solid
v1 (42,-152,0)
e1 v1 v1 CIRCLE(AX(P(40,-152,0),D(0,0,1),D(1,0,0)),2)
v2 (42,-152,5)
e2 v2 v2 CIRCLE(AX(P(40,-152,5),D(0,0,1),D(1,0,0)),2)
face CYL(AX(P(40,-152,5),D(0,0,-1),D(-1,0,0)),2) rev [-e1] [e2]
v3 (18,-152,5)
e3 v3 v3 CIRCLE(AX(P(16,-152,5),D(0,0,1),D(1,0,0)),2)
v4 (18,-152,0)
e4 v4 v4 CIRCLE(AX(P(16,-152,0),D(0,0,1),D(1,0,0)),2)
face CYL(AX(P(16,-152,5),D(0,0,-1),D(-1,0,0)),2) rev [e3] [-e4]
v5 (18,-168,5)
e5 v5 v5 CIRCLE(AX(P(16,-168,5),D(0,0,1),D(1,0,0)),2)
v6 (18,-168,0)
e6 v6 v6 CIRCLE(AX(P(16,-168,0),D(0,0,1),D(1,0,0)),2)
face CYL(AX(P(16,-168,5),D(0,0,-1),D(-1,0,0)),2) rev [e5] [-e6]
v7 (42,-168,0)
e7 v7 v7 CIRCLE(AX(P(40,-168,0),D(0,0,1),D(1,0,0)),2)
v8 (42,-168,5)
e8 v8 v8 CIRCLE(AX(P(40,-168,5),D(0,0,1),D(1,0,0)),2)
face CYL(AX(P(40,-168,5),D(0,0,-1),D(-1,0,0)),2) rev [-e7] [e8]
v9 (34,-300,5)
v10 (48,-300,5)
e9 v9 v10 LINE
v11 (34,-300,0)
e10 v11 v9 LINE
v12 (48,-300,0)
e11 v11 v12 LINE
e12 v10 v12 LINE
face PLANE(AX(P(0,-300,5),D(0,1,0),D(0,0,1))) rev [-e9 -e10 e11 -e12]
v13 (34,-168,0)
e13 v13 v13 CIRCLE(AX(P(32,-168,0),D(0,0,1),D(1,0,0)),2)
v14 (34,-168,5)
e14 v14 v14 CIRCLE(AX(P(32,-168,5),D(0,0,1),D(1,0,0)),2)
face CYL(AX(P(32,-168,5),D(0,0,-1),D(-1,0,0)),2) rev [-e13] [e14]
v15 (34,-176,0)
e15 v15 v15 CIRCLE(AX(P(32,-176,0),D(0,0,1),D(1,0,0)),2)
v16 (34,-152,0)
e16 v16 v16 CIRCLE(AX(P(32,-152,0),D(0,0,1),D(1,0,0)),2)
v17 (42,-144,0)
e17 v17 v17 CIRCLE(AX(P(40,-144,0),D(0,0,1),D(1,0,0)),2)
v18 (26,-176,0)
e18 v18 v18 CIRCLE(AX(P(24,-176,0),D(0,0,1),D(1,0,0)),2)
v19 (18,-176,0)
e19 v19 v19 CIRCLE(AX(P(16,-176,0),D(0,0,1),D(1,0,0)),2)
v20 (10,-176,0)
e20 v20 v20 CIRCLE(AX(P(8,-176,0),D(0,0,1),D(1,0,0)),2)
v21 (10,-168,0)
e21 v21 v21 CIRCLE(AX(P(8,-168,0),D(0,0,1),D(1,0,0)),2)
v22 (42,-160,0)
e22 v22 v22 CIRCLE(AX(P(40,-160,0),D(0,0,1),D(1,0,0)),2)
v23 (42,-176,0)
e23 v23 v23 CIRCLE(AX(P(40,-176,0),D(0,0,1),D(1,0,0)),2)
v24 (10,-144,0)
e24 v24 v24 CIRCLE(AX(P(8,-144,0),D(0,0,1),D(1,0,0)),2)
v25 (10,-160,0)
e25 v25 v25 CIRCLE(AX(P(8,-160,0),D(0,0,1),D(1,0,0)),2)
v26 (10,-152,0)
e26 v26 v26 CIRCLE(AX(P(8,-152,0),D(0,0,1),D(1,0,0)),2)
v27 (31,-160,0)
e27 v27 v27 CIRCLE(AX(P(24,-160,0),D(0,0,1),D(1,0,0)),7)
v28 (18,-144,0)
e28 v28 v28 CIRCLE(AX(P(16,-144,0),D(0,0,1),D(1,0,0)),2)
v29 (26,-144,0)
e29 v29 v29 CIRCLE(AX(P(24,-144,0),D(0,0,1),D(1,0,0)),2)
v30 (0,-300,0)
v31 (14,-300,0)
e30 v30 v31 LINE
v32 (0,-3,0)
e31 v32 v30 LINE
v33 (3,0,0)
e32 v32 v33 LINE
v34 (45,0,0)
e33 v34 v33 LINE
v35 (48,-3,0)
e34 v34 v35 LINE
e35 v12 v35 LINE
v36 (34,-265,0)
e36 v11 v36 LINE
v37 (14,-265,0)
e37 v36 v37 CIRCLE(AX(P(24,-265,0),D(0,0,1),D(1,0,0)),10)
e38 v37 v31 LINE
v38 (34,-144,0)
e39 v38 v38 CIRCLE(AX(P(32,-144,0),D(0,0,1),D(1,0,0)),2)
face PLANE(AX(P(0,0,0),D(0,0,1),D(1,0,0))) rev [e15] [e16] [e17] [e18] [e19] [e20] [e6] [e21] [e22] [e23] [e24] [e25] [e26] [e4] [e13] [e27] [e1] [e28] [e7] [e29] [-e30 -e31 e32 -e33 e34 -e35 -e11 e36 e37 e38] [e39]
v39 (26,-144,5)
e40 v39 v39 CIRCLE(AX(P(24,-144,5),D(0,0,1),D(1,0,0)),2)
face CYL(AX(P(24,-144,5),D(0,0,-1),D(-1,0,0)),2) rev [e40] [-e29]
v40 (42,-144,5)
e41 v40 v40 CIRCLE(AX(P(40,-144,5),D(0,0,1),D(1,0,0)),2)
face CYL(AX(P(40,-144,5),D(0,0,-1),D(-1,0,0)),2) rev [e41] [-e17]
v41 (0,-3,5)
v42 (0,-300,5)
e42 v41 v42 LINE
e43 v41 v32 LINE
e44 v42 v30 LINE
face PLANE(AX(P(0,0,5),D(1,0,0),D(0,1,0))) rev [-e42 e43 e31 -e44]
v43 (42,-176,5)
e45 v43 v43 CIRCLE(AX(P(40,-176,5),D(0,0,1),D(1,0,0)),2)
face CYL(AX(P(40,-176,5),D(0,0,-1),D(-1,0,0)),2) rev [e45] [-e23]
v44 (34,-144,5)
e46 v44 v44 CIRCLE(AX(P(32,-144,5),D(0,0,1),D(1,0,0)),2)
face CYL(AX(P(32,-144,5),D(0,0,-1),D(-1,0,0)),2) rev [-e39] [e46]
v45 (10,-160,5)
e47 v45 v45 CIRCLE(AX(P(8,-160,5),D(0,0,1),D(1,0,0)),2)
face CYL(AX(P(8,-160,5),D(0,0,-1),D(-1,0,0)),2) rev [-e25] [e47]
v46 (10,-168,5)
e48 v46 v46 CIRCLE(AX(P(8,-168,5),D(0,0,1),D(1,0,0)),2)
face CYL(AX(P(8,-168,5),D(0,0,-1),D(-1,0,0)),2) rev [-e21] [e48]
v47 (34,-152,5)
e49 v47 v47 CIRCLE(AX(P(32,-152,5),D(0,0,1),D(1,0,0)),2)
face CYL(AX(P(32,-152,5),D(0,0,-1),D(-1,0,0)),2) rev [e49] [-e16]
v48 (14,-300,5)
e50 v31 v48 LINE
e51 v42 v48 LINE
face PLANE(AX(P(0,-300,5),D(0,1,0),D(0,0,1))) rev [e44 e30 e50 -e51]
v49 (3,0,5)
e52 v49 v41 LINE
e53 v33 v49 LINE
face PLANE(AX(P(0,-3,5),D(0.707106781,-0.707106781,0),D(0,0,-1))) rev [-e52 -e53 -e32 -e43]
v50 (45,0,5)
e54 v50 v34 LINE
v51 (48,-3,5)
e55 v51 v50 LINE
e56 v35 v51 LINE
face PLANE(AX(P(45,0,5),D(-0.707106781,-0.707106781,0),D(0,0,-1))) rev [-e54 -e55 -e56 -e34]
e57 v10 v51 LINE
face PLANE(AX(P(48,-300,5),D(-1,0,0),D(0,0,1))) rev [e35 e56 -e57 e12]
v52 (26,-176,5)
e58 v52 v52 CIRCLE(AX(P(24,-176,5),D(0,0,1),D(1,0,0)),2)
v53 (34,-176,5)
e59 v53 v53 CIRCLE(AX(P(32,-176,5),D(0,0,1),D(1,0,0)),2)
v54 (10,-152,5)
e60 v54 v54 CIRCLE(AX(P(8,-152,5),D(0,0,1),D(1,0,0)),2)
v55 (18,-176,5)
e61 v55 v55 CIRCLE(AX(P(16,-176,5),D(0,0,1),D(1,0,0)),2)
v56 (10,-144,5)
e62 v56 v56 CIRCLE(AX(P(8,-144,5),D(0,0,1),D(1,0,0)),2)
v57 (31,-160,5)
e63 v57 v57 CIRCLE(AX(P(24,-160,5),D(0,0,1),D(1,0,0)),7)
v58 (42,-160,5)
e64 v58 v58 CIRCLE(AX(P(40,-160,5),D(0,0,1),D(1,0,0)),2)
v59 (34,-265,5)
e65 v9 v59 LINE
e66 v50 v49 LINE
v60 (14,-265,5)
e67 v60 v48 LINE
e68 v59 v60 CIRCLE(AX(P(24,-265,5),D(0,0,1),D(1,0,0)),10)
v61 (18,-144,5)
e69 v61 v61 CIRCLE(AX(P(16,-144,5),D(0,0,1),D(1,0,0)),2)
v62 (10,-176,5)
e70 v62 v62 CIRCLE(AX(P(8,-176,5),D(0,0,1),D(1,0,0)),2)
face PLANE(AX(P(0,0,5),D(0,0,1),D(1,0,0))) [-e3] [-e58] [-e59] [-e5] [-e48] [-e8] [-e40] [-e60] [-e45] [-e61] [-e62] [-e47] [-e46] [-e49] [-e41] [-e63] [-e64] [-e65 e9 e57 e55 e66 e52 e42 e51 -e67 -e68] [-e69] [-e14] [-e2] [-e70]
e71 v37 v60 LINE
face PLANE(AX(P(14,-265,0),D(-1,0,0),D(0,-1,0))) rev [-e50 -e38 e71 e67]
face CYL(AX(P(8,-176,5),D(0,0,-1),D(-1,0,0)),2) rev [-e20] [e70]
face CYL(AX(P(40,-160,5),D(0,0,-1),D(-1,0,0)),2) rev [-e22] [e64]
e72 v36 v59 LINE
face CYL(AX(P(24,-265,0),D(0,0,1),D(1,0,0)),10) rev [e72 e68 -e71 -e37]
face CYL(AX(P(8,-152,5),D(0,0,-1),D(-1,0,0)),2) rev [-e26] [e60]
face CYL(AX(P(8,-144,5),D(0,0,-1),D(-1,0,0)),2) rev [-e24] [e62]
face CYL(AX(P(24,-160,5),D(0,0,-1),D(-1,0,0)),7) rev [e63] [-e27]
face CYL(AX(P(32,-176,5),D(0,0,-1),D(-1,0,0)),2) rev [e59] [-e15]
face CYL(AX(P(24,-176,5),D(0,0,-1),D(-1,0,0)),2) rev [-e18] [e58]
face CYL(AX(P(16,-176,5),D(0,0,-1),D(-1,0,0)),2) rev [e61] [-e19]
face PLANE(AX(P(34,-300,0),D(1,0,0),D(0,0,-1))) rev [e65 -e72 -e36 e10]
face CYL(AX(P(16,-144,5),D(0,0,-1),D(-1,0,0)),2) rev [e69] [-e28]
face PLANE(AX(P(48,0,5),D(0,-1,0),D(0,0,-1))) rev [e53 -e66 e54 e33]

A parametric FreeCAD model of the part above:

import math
import FreeCAD as App
import Part
import Sketcher


def edges_at(feature, points):
    """Names of the edges that pass closest to the given points."""
    edges = feature.Shape.Edges
    near = lambda p: min(range(len(edges)), key=lambda i: edges[i].distToShape(Part.Vertex(*p))[0])
    return sorted({f"Edge{near(p) + 1}" for p in points})

doc = App.newDocument("Part")
params = doc.addObject("Spreadsheet::Sheet", "Params")
for row, (alias, value) in enumerate([
    ("sketch1_diameter", "4 mm"),
    ("sketch1_diameter2", "14 mm"),
    ("sketch1_width", "48 mm"),
    ("sketch1_height", "300 mm"),
    ("pad1_length", "5 mm"),
    ("chamfer_size", "3 mm"),
    ("sketch2_radius", "10 mm"),
    ("sketch2_height", "35 mm"),
], start=1):
    params.set(f"A{row}", alias)
    params.set(f"B{row}", "=" + value)
    params.setAlias(f"B{row}", alias)

body = doc.addObject("PartDesign::Body", "Body")

# Sketch on XY plane
sketch1 = body.newObject("Sketcher::SketchObject", "Sketch")
sketch1.AttachmentSupport = (doc.getObject("XY_Plane"), [""])
sketch1.MapMode = "FlatFace"
sketch1.addGeometry(Part.LineSegment(App.Vector(0, 0, 0), App.Vector(0, -300, 0)), False)
sketch1.addGeometry(Part.LineSegment(App.Vector(0, -300, 0), App.Vector(48, -300, 0)), False)
sketch1.addGeometry(Part.LineSegment(App.Vector(48, -300, 0), App.Vector(48, 0, 0)), False)
sketch1.addGeometry(Part.LineSegment(App.Vector(48, 0, 0), App.Vector(0, 0, 0)), False)
sketch1.addGeometry(Part.Circle(App.Vector(8, -176, 0), App.Vector(0, 0, 1), 2), False)
sketch1.addGeometry(Part.Circle(App.Vector(16, -176, 0), App.Vector(0, 0, 1), 2), False)
sketch1.addGeometry(Part.Circle(App.Vector(8, -168, 0), App.Vector(0, 0, 1), 2), False)
sketch1.addGeometry(Part.Circle(App.Vector(16, -168, 0), App.Vector(0, 0, 1), 2), False)
sketch1.addGeometry(Part.Circle(App.Vector(24, -176, 0), App.Vector(0, 0, 1), 2), False)
sketch1.addGeometry(Part.Circle(App.Vector(32, -176, 0), App.Vector(0, 0, 1), 2), False)
sketch1.addGeometry(Part.Circle(App.Vector(40, -176, 0), App.Vector(0, 0, 1), 2), False)
sketch1.addGeometry(Part.Circle(App.Vector(32, -168, 0), App.Vector(0, 0, 1), 2), False)
sketch1.addGeometry(Part.Circle(App.Vector(40, -168, 0), App.Vector(0, 0, 1), 2), False)
sketch1.addGeometry(Part.Circle(App.Vector(8, -160, 0), App.Vector(0, 0, 1), 2), False)
sketch1.addGeometry(Part.Circle(App.Vector(8, -152, 0), App.Vector(0, 0, 1), 2), False)
sketch1.addGeometry(Part.Circle(App.Vector(16, -152, 0), App.Vector(0, 0, 1), 2), False)
sketch1.addGeometry(Part.Circle(App.Vector(8, -144, 0), App.Vector(0, 0, 1), 2), False)
sketch1.addGeometry(Part.Circle(App.Vector(16, -144, 0), App.Vector(0, 0, 1), 2), False)
sketch1.addGeometry(Part.Circle(App.Vector(24, -160, 0), App.Vector(0, 0, 1), 7), False)
sketch1.addGeometry(Part.Circle(App.Vector(32, -152, 0), App.Vector(0, 0, 1), 2), False)
sketch1.addGeometry(Part.Circle(App.Vector(40, -160, 0), App.Vector(0, 0, 1), 2), False)
sketch1.addGeometry(Part.Circle(App.Vector(40, -152, 0), App.Vector(0, 0, 1), 2), False)
sketch1.addGeometry(Part.Circle(App.Vector(24, -144, 0), App.Vector(0, 0, 1), 2), False)
sketch1.addGeometry(Part.Circle(App.Vector(32, -144, 0), App.Vector(0, 0, 1), 2), False)
sketch1.addGeometry(Part.Circle(App.Vector(40, -144, 0), App.Vector(0, 0, 1), 2), False)
sketch1.addConstraint(Sketcher.Constraint("Coincident", 0, 2, 1, 1))
sketch1.addConstraint(Sketcher.Constraint("Coincident", 1, 2, 2, 1))
sketch1.addConstraint(Sketcher.Constraint("Coincident", 2, 2, 3, 1))
sketch1.addConstraint(Sketcher.Constraint("Coincident", 3, 2, 0, 1))
sketch1.addConstraint(Sketcher.Constraint("Vertical", 0))
sketch1.addConstraint(Sketcher.Constraint("Horizontal", 1))
sketch1.addConstraint(Sketcher.Constraint("Vertical", 2))
sketch1.addConstraint(Sketcher.Constraint("Horizontal", 3))
sketch1.addConstraint(Sketcher.Constraint("Coincident", 3, 2, -1, 1))
sketch1.addConstraint(Sketcher.Constraint("Equal", 4, 5))
sketch1.addConstraint(Sketcher.Constraint("Equal", 5, 6))
sketch1.addConstraint(Sketcher.Constraint("Equal", 6, 7))
sketch1.addConstraint(Sketcher.Constraint("Equal", 7, 8))
sketch1.addConstraint(Sketcher.Constraint("Equal", 8, 9))
sketch1.addConstraint(Sketcher.Constraint("Equal", 9, 10))
sketch1.addConstraint(Sketcher.Constraint("Equal", 10, 11))
sketch1.addConstraint(Sketcher.Constraint("Equal", 11, 12))
sketch1.addConstraint(Sketcher.Constraint("Equal", 12, 13))
sketch1.addConstraint(Sketcher.Constraint("Equal", 13, 14))
sketch1.addConstraint(Sketcher.Constraint("Equal", 14, 15))
sketch1.addConstraint(Sketcher.Constraint("Equal", 15, 16))
sketch1.addConstraint(Sketcher.Constraint("Equal", 16, 17))
sketch1.addConstraint(Sketcher.Constraint("Equal", 17, 19))
sketch1.addConstraint(Sketcher.Constraint("Equal", 19, 20))
sketch1.addConstraint(Sketcher.Constraint("Equal", 20, 21))
sketch1.addConstraint(Sketcher.Constraint("Equal", 21, 22))
sketch1.addConstraint(Sketcher.Constraint("Equal", 22, 23))
sketch1.addConstraint(Sketcher.Constraint("Equal", 23, 24))
sketch1.addConstraint(Sketcher.Constraint("Horizontal", 4, 3, 5, 3))
sketch1.addConstraint(Sketcher.Constraint("Horizontal", 6, 3, 7, 3))
sketch1.addConstraint(Sketcher.Constraint("Horizontal", 5, 3, 8, 3))
sketch1.addConstraint(Sketcher.Constraint("Horizontal", 8, 3, 9, 3))
sketch1.addConstraint(Sketcher.Constraint("Horizontal", 9, 3, 10, 3))
sketch1.addConstraint(Sketcher.Constraint("Horizontal", 7, 3, 11, 3))
sketch1.addConstraint(Sketcher.Constraint("Horizontal", 11, 3, 12, 3))
sketch1.addConstraint(Sketcher.Constraint("Horizontal", 14, 3, 15, 3))
sketch1.addConstraint(Sketcher.Constraint("Horizontal", 16, 3, 17, 3))
sketch1.addConstraint(Sketcher.Constraint("Horizontal", 13, 3, 18, 3))
sketch1.addConstraint(Sketcher.Constraint("Horizontal", 15, 3, 19, 3))
sketch1.addConstraint(Sketcher.Constraint("Horizontal", 18, 3, 20, 3))
sketch1.addConstraint(Sketcher.Constraint("Horizontal", 19, 3, 21, 3))
sketch1.addConstraint(Sketcher.Constraint("Horizontal", 17, 3, 22, 3))
sketch1.addConstraint(Sketcher.Constraint("Horizontal", 22, 3, 23, 3))
sketch1.addConstraint(Sketcher.Constraint("Horizontal", 23, 3, 24, 3))
sketch1.addConstraint(Sketcher.Constraint("Vertical", 4, 3, 6, 3))
sketch1.addConstraint(Sketcher.Constraint("Vertical", 5, 3, 7, 3))
sketch1.addConstraint(Sketcher.Constraint("Vertical", 9, 3, 11, 3))
sketch1.addConstraint(Sketcher.Constraint("Vertical", 10, 3, 12, 3))
sketch1.addConstraint(Sketcher.Constraint("Vertical", 6, 3, 13, 3))
sketch1.addConstraint(Sketcher.Constraint("Vertical", 13, 3, 14, 3))
sketch1.addConstraint(Sketcher.Constraint("Vertical", 7, 3, 15, 3))
sketch1.addConstraint(Sketcher.Constraint("Vertical", 14, 3, 16, 3))
sketch1.addConstraint(Sketcher.Constraint("Vertical", 15, 3, 17, 3))
sketch1.addConstraint(Sketcher.Constraint("Vertical", 8, 3, 18, 3))
sketch1.addConstraint(Sketcher.Constraint("Vertical", 11, 3, 19, 3))
sketch1.addConstraint(Sketcher.Constraint("Vertical", 12, 3, 20, 3))
sketch1.addConstraint(Sketcher.Constraint("Vertical", 20, 3, 21, 3))
sketch1.addConstraint(Sketcher.Constraint("Vertical", 18, 3, 22, 3))
sketch1.addConstraint(Sketcher.Constraint("Vertical", 19, 3, 23, 3))
sketch1.addConstraint(Sketcher.Constraint("Vertical", 21, 3, 24, 3))
sketch1.addConstraint(Sketcher.Constraint("Diameter", 4, 4.0))
sketch1.addConstraint(Sketcher.Constraint("Diameter", 18, 14.0))
sketch1.addConstraint(Sketcher.Constraint("DistanceX", 1, 1, 1, 2, 48.0))
sketch1.addConstraint(Sketcher.Constraint("DistanceY", 0, 2, 0, 1, 300.0))
sketch1.addConstraint(Sketcher.Constraint("DistanceX", -1, 1, 4, 3, 8.0))
sketch1.addConstraint(Sketcher.Constraint("DistanceY", 4, 3, -1, 1, 176.0))
sketch1.addConstraint(Sketcher.Constraint("DistanceX", -1, 1, 5, 3, 16.0))
sketch1.addConstraint(Sketcher.Constraint("DistanceY", 6, 3, -1, 1, 168.0))
sketch1.addConstraint(Sketcher.Constraint("DistanceX", -1, 1, 8, 3, 24.0))
sketch1.addConstraint(Sketcher.Constraint("DistanceX", -1, 1, 9, 3, 32.0))
sketch1.addConstraint(Sketcher.Constraint("DistanceX", -1, 1, 10, 3, 40.0))
sketch1.addConstraint(Sketcher.Constraint("DistanceY", 13, 3, -1, 1, 160.0))
sketch1.addConstraint(Sketcher.Constraint("DistanceY", 14, 3, -1, 1, 152.0))
sketch1.addConstraint(Sketcher.Constraint("DistanceY", 16, 3, -1, 1, 144.0))
sketch1.setExpression("Constraints[60]", "Params.sketch1_diameter")
sketch1.setExpression("Constraints[61]", "Params.sketch1_diameter2")
sketch1.setExpression("Constraints[62]", "Params.sketch1_width")
sketch1.setExpression("Constraints[63]", "Params.sketch1_height")
pad1 = body.newObject("PartDesign::Pad", "Pad")
pad1.Profile = sketch1
pad1.setExpression("Length", "Params.pad1_length")
doc.recompute()

chamfer = body.newObject("PartDesign::Chamfer", "Chamfer")
chamfer.Base = (pad1, edges_at(pad1, [(48, 0, 2.5), (0, 0, 2.5)]))
chamfer.setExpression("Size", "Params.chamfer_size")

# Sketch on XY plane
sketch2 = body.newObject("Sketcher::SketchObject", "Sketch001")
sketch2.AttachmentSupport = (doc.getObject("XY_Plane"), [""])
sketch2.MapMode = "FlatFace"
sketch2.AttachmentOffset = App.Placement(App.Vector(0, 0, 5), App.Rotation())
sketch2.addGeometry(Part.LineSegment(App.Vector(14, -265, 0), App.Vector(14, -300, 0)), False)
sketch2.addGeometry(Part.LineSegment(App.Vector(14, -300, 0), App.Vector(34, -300, 0)), False)
sketch2.addGeometry(Part.LineSegment(App.Vector(34, -300, 0), App.Vector(34, -265, 0)), False)
sketch2.addGeometry(Part.ArcOfCircle(Part.Circle(App.Vector(24, -265, 0), App.Vector(0, 0, 1), 10), math.radians(0), math.radians(180)), False)
sketch2.addConstraint(Sketcher.Constraint("Coincident", 0, 2, 1, 1))
sketch2.addConstraint(Sketcher.Constraint("Coincident", 1, 2, 2, 1))
sketch2.addConstraint(Sketcher.Constraint("Tangent", 2, 2, 3, 1))
sketch2.addConstraint(Sketcher.Constraint("Tangent", 3, 2, 0, 1))
sketch2.addConstraint(Sketcher.Constraint("Vertical", 0))
sketch2.addConstraint(Sketcher.Constraint("Horizontal", 1))
sketch2.addConstraint(Sketcher.Constraint("Vertical", 2))
sketch2.addConstraint(Sketcher.Constraint("Radius", 3, 10.0))
sketch2.addConstraint(Sketcher.Constraint("DistanceY", 0, 2, 0, 1, 35.0))
sketch2.addConstraint(Sketcher.Constraint("DistanceX", -1, 1, 3, 3, 24.0))
sketch2.addConstraint(Sketcher.Constraint("DistanceY", 3, 3, -1, 1, 265.0))
sketch2.setExpression("Constraints[7]", "Params.sketch2_radius")
sketch2.setExpression("Constraints[8]", "Params.sketch2_height")
pocket1 = body.newObject("PartDesign::Pocket", "Pocket")
pocket1.Profile = sketch2
pocket1.Type = "ThroughAll"

doc.recompute()
